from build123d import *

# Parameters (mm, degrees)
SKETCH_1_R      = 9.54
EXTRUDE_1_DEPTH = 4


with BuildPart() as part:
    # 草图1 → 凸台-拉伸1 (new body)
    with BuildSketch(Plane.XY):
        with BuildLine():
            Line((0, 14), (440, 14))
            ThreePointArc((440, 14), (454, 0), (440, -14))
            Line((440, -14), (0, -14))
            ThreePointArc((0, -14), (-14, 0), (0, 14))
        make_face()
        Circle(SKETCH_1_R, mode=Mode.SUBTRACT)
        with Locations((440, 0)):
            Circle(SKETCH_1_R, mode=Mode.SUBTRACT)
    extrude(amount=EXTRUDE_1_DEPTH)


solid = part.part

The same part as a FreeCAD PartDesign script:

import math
import FreeCAD as App
import Part
import Sketcher

V = App.Vector

doc = App.newDocument("Part")
params = doc.addObject("Spreadsheet::Sheet", "Params")
for row, (alias, value) in enumerate([
    ("sketch1_radius", "14 mm"),
    ("sketch1_diameter", "19.08 mm"),
    ("sketch1_width", "440 mm"),
    ("pad1_length", "4 mm"),
], start=1):
    params.set(f"A{row}", alias)
    params.set(f"B{row}", "=" + value)
    params.setAlias(f"B{row}", alias)

body = doc.addObject("PartDesign::Body", "Body")

# Sketch on XY plane
sketch1 = body.newObject("Sketcher::SketchObject", "Sketch")
sketch1.AttachmentSupport = (doc.getObject("XY_Plane"), [""])
sketch1.MapMode = "FlatFace"
sketch1.addGeometry([
    Part.LineSegment(V(440, 14, 0), V(0, 14, 0)),  # 0
    Part.ArcOfCircle(Part.Circle(V(0, 0, 0), V(0, 0, 1), 14), math.radians(90), math.radians(270)),  # 1
    Part.LineSegment(V(0, -14, 0), V(440, -14, 0)),  # 2
    Part.ArcOfCircle(Part.Circle(V(440, 0, 0), V(0, 0, 1), 14), math.radians(-90), math.radians(90)),  # 3
    Part.Circle(V(440, 0, 0), V(0, 0, 1), 10),  # 4
    Part.Circle(V(0, 0, 0), V(0, 0, 1), 10),  # 5
], False)
sketch1.addConstraint([
    Sketcher.Constraint("Tangent", 0, 2, 1, 1),
    Sketcher.Constraint("Tangent", 1, 2, 2, 1),
    Sketcher.Constraint("Tangent", 2, 2, 3, 1),
    Sketcher.Constraint("Tangent", 3, 2, 0, 1),
    Sketcher.Constraint("Horizontal", 0),
    Sketcher.Constraint("Horizontal", 2),
    Sketcher.Constraint("Coincident", 1, 3, -1, 1),
    Sketcher.Constraint("Coincident", 5, 3, -1, 1),
    Sketcher.Constraint("Coincident", 4, 3, 3, 3),
    Sketcher.Constraint("Equal", 4, 5),
    Sketcher.Constraint("Radius", 1, 14.0),
    Sketcher.Constraint("Diameter", 4, 19.08),
    Sketcher.Constraint("DistanceX", 0, 2, 0, 1, 440.0),
])
sketch1.setExpression("Constraints[10]", "Params.sketch1_radius")
sketch1.setExpression("Constraints[11]", "Params.sketch1_diameter")
sketch1.setExpression("Constraints[12]", "Params.sketch1_width")
pad1 = body.newObject("PartDesign::Pad", "Pad")
pad1.Profile = sketch1
pad1.setExpression("Length", "Params.pad1_length")

doc.recompute()
